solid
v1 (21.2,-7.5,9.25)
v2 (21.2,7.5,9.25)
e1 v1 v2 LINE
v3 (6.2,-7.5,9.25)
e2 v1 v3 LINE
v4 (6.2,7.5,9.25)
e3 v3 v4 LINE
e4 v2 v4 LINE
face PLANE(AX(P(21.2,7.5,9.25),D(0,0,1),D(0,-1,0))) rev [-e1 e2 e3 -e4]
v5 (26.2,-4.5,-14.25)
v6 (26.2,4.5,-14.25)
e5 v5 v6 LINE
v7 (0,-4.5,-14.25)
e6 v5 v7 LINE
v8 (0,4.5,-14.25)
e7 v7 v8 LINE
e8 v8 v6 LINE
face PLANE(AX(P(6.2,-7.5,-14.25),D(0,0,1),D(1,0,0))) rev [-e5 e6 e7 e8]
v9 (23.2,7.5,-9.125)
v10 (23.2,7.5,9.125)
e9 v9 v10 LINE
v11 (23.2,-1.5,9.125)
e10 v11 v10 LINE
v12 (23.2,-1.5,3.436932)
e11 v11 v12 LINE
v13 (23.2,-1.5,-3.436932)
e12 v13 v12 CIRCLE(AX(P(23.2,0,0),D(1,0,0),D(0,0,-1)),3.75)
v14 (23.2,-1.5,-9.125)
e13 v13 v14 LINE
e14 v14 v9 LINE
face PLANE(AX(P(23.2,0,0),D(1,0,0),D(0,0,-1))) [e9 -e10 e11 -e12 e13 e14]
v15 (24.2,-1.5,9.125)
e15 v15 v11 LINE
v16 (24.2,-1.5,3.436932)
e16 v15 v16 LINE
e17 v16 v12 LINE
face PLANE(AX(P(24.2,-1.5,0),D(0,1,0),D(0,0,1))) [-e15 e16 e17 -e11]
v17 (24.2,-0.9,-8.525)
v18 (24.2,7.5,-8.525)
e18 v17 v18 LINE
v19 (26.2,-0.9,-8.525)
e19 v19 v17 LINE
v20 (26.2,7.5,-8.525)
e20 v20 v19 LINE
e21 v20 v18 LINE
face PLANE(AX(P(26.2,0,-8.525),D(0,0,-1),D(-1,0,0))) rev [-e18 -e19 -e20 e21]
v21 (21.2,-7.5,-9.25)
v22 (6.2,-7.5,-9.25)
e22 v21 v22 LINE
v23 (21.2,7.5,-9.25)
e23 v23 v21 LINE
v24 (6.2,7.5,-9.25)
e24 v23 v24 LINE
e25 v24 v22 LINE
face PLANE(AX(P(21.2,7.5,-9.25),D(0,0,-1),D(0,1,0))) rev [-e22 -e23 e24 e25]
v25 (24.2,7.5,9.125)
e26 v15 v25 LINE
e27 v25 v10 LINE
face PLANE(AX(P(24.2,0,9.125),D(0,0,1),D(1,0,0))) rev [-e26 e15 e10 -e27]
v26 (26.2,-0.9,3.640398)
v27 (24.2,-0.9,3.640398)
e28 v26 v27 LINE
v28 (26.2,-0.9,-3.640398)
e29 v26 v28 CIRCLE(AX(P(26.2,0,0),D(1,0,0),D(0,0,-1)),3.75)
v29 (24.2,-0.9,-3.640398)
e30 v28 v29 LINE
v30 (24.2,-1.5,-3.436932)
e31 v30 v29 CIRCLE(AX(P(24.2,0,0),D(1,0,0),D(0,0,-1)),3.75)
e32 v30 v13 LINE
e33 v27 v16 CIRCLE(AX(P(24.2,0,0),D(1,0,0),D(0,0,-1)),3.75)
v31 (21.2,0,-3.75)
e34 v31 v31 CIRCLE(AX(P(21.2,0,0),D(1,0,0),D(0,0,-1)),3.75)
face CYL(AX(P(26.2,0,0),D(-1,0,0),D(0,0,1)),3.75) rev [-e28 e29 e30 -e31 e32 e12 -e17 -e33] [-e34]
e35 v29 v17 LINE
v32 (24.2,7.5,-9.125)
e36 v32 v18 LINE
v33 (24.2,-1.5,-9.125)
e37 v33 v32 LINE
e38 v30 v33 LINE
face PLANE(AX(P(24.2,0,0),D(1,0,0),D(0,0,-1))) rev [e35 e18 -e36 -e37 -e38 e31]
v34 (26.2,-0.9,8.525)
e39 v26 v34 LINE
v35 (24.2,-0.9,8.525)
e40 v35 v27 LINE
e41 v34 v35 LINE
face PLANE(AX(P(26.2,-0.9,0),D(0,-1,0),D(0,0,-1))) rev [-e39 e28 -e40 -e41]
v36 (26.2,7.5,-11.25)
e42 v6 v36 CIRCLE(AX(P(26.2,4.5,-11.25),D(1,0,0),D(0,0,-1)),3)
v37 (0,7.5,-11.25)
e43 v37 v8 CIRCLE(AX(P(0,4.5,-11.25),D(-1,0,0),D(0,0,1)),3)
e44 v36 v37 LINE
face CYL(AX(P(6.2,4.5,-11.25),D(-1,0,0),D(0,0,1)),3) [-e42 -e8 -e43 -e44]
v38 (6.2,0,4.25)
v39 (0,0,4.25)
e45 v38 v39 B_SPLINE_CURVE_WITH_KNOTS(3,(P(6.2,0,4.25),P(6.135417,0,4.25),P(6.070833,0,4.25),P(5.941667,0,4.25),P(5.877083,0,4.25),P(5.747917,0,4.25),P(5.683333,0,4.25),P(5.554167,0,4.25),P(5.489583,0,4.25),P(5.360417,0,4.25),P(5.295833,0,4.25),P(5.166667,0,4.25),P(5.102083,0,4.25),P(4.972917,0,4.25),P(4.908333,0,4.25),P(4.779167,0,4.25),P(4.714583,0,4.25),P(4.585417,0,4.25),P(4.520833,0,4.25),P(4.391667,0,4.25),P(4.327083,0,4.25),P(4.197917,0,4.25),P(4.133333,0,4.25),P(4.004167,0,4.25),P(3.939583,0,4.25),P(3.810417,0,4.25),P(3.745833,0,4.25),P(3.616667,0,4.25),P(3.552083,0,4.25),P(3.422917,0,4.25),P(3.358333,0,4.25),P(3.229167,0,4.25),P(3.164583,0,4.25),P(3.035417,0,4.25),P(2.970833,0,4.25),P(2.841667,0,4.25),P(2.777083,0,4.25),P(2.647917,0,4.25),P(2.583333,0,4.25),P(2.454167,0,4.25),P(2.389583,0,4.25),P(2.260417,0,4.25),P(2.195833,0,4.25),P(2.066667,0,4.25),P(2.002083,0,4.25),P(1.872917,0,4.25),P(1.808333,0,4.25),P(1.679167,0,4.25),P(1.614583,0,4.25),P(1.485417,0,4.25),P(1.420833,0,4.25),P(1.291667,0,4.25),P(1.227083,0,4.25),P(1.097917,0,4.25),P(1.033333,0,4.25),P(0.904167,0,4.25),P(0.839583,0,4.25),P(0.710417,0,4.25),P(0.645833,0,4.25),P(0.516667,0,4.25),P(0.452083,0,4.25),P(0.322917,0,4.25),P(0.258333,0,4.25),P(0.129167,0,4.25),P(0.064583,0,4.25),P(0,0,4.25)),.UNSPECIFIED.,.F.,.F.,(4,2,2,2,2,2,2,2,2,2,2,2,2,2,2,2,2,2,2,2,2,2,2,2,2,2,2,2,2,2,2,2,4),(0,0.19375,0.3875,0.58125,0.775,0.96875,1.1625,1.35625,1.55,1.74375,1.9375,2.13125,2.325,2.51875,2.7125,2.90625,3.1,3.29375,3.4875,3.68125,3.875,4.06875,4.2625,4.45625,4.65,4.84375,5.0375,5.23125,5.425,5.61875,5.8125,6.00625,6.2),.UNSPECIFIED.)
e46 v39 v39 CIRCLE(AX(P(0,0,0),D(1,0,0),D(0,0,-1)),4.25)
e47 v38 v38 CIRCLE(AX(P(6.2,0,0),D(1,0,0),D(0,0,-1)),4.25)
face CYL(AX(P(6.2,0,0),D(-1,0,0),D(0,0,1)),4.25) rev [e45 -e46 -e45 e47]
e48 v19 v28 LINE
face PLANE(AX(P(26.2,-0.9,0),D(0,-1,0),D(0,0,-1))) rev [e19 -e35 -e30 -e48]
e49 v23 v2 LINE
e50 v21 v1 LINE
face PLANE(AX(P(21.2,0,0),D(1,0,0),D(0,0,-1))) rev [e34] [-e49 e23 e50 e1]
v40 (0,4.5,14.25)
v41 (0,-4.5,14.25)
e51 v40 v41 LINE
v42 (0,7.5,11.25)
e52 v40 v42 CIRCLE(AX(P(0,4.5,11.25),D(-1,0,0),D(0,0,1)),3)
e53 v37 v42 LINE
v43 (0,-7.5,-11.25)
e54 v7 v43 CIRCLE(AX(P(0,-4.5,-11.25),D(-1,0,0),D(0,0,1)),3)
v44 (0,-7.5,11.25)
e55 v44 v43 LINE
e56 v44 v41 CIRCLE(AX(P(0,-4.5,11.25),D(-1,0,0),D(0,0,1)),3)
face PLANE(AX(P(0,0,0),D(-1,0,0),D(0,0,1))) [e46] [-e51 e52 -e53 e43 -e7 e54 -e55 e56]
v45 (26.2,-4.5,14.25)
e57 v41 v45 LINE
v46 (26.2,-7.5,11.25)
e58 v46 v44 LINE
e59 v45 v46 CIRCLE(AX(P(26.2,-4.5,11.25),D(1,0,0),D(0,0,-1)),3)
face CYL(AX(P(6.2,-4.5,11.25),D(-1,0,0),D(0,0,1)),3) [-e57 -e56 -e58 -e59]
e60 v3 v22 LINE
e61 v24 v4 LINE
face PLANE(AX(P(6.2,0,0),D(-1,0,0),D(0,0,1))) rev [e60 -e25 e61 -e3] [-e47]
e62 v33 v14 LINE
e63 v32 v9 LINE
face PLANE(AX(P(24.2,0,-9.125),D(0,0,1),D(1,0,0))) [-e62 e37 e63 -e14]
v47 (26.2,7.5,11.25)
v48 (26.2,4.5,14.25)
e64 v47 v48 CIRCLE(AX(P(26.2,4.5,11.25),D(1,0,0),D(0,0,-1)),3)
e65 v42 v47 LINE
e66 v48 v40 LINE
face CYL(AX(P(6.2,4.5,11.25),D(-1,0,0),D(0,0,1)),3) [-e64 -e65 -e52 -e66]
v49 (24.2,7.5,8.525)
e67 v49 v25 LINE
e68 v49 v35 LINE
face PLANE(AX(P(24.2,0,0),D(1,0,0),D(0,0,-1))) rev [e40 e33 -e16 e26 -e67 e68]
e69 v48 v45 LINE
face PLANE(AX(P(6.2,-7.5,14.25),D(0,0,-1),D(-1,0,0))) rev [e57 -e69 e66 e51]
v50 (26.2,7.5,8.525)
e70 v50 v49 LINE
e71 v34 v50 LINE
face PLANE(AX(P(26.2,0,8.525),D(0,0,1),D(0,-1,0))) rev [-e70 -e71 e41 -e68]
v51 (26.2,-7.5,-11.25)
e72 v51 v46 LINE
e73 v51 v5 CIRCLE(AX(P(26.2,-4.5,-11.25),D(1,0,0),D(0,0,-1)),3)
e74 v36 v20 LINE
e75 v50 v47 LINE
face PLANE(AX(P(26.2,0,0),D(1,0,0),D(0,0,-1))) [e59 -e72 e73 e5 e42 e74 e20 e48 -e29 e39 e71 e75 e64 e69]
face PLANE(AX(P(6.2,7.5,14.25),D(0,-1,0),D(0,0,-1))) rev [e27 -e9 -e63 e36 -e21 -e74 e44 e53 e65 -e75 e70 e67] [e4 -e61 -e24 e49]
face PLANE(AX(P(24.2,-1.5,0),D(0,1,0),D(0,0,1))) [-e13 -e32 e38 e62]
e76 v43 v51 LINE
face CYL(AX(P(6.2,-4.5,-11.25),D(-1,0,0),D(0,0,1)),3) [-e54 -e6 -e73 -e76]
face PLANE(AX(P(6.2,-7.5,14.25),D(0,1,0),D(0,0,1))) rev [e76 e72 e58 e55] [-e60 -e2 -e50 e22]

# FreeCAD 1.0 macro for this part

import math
import FreeCAD as App
import Part
import Sketcher

V = App.Vector
Q = App.Units.Quantity


def edges_at(feature, points):
    """Names of the edges that pass closest to the given points."""
    edges = feature.Shape.Edges
    near = lambda p: min(range(len(edges)), key=lambda i: edges[i].distToShape(Part.Vertex(*p))[0])
    return sorted({f"Edge{near(p) + 1}" for p in points})

doc = App.newDocument("Part")
body = doc.addObject("PartDesign::Body", "Body")

sketch1 = body.newObject("Sketcher::SketchObject", "Sketch")
sketch1.AttachmentSupport = (doc.getObject("YZ_Plane"), [""])
sketch1.MapMode = "FlatFace"
sketch1.addGeometry([
    Part.LineSegment(V(7.5, 14.2, 0), V(-7.5, 14.2, 0)),
    Part.LineSegment(V(-7.5, 14.2, 0), V(-7.5, -14.2, 0)),
    Part.LineSegment(V(-7.5, -14.2, 0), V(7.5, -14.2, 0)),
    Part.LineSegment(V(7.5, -14.2, 0), V(7.5, 14.2, 0)),
    Part.Circle(V(0, 0, 0), V(0, 0, 1), 4.2),
], False)
sketch1.addConstraint([
    Sketcher.Constraint("Coincident", 0, 2, 1, 1),
    Sketcher.Constraint("Coincident", 1, 2, 2, 1),
    Sketcher.Constraint("Coincident", 2, 2, 3, 1),
    Sketcher.Constraint("Coincident", 3, 2, 0, 1),
    Sketcher.Constraint("Horizontal", 0),
    Sketcher.Constraint("Vertical", 1),
    Sketcher.Constraint("Horizontal", 2),
    Sketcher.Constraint("Vertical", 3),
    Sketcher.Constraint("Coincident", 4, 3, -1, 1),
    Sketcher.Constraint("Symmetric", 0, 2, 2, 2, -1, 1),
    Sketcher.Constraint("Diameter", 4, Q("8.5 mm")),
    Sketcher.Constraint("DistanceX", 0, 2, 0, 1, Q("15 mm")),
    Sketcher.Constraint("DistanceY", 1, 2, 1, 1, Q("28.5 mm")),
])
pad1 = body.newObject("PartDesign::Pad", "Pad")
pad1.Profile = sketch1
pad1.Length = 6.2

sketch2 = body.newObject("Sketcher::SketchObject", "Sketch001")
sketch2.AttachmentSupport = (doc.getObject("YZ_Plane"), [""])
sketch2.MapMode = "FlatFace"
sketch2.AttachmentOffset = App.Placement(V(0, 0, 6.2), App.Rotation())
sketch2.addGeometry([
    Part.LineSegment(V(8, 14, 0), V(-8, 14, 0)),
    Part.LineSegment(V(-8, 14, 0), V(-8, 9, 0)),
    Part.LineSegment(V(-8, 9, 0), V(8, 9, 0)),
    Part.LineSegment(V(8, 9, 0), V(8, 14, 0)),
    Part.LineSegment(V(8, -9, 0), V(-8, -9, 0)),
    Part.LineSegment(V(-8, -9, 0), V(-8, -14, 0)),
    Part.LineSegment(V(-8, -14, 0), V(8, -14, 0)),
    Part.LineSegment(V(8, -14, 0), V(8, -9, 0)),
], False)
sketch2.addConstraint([
    Sketcher.Constraint("Coincident", 0, 2, 1, 1),
    Sketcher.Constraint("Coincident", 1, 2, 2, 1),
    Sketcher.Constraint("Coincident", 2, 2, 3, 1),
    Sketcher.Constraint("Coincident", 3, 2, 0, 1),
    Sketcher.Constraint("Coincident", 4, 2, 5, 1),
    Sketcher.Constraint("Coincident", 5, 2, 6, 1),
    Sketcher.Constraint("Coincident", 6, 2, 7, 1),
    Sketcher.Constraint("Coincident", 7, 2, 4, 1),
    Sketcher.Constraint("Horizontal", 0),
    Sketcher.Constraint("Vertical", 1),
    Sketcher.Constraint("Horizontal", 2),
    Sketcher.Constraint("Vertical", 3),
    Sketcher.Constraint("Horizontal", 4),
    Sketcher.Constraint("Vertical", 5),
    Sketcher.Constraint("Horizontal", 6),
    Sketcher.Constraint("Vertical", 7),
    Sketcher.Constraint("Symmetric", 2, 2, 4, 2, -1, 1),
    Sketcher.Constraint("Symmetric", 0, 2, 6, 2, -1, 1),
    Sketcher.Constraint("Vertical", 1, 2, 4, 2),
    Sketcher.Constraint("DistanceX", 0, 2, 0, 1, Q("15 mm")),
    Sketcher.Constraint("DistanceY", 1, 2, 1, 1, Q("5 mm")),
    Sketcher.Constraint("DistanceY", 4, 2, 1, 2, Q("18.5 mm")),
])
pad2 = body.newObject("PartDesign::Pad", "Pad001")
pad2.Profile = sketch2
pad2.Length = 15

sketch3 = body.newObject("Sketcher::SketchObject", "Sketch002")
sketch3.AttachmentSupport = (doc.getObject("YZ_Plane"), [""])
sketch3.MapMode = "FlatFace"
sketch3.AttachmentOffset = App.Placement(V(0, 0, 21.2), App.Rotation())
sketch3.addGeometry([
    Part.LineSegment(V(7.5, 14.2, 0), V(-7.5, 14.2, 0)),
    Part.LineSegment(V(-7.5, 14.2, 0), V(-7.5, -14.2, 0)),
    Part.LineSegment(V(-7.5, -14.2, 0), V(7.5, -14.2, 0)),
    Part.LineSegment(V(7.5, -14.2, 0), V(7.5, 14.2, 0)),
    Part.ArcOfCircle(Part.Circle(V(0, 0, 0), V(0, 0, 1), 3.8), math.radians(114), math.radians(246)),
    Part.ArcOfCircle(Part.Circle(V(0, 0, 0), V(0, 0, 1), 3.7), math.radians(103.89), math.radians(113.58)),
    Part.ArcOfCircle(Part.Circle(V(0, 0, 0), V(0, 0, 1), 3.8), math.radians(-90), math.radians(104)),
    Part.ArcOfCircle(Part.Circle(V(0, 0, 0), V(0, 0, 1), 3.7), math.radians(-103.89), math.radians(-90)),
    Part.ArcOfCircle(Part.Circle(V(0, 0, 0), V(0, 0, 1), 3.7), math.radians(-113.58), math.radians(-103.89)),
], False)
sketch3.addConstraint([
    Sketcher.Constraint("Coincident", 0, 2, 1, 1),
    Sketcher.Constraint("Coincident", 1, 2, 2, 1),
    Sketcher.Constraint("Coincident", 2, 2, 3, 1),
    Sketcher.Constraint("Coincident", 3, 2, 0, 1),
    Sketcher.Constraint("Tangent", 4, 1, 5, 2),
    Sketcher.Constraint("Tangent", 5, 1, 6, 2),
    Sketcher.Constraint("Tangent", 6, 1, 7, 2),
    Sketcher.Constraint("Tangent", 7, 1, 8, 2),
    Sketcher.Constraint("Tangent", 8, 1, 4, 2),
    Sketcher.Constraint("Horizontal", 0),
    Sketcher.Constraint("Vertical", 1),
    Sketcher.Constraint("Horizontal", 2),
    Sketcher.Constraint("Vertical", 3),
    Sketcher.Constraint("Coincident", 4, 3, -1, 1),
    Sketcher.Constraint("Coincident", 6, 3, -1, 1),
    Sketcher.Constraint("Symmetric", 0, 2, 2, 2, -1, 1),
    Sketcher.Constraint("PointOnObject", 6, 1, -2),
    Sketcher.Constraint("Vertical", 5, 1, 7, 1),
    Sketcher.Constraint("Vertical", 4, 1, 8, 1),
    Sketcher.Constraint("DistanceX", 0, 2, 0, 1, Q("15 mm")),
    Sketcher.Constraint("Radius", 4, Q("3.75 mm")),
    Sketcher.Constraint("DistanceY", 1, 2, 1, 1, Q("28.5 mm")),
    Sketcher.Constraint("DistanceX", 4, 1, -1, 1, Q("1.5 mm")),
    Sketcher.Constraint("DistanceX", 5, 1, -1, 1, Q("0.9 mm")),
])
pad3 = body.newObject("PartDesign::Pad", "Pad002")
pad3.Profile = sketch3
pad3.Length = 5

sketch4 = body.newObject("Sketcher::SketchObject", "Sketch003")
sketch4.AttachmentSupport = (doc.getObject("YZ_Plane"), [""])
sketch4.MapMode = "FlatFace"
sketch4.AttachmentOffset = App.Placement(V(0, 0, 23.2), App.Rotation())
sketch4.addGeometry([
    Part.LineSegment(V(7.5, 9.1, 0), V(-1.5, 9.1, 0)),
    Part.LineSegment(V(-1.5, 9.1, 0), V(-1.5, 3.4, 0)),
    Part.ArcOfCircle(Part.Circle(V(0, 0, 0), V(0, 0, 1), 3.7), math.radians(103.89), math.radians(113.58)),
    Part.ArcOfCircle(Part.Circle(V(0, 0, 0), V(0, 0, 1), 3.8), math.radians(-90), math.radians(104)),
    Part.ArcOfCircle(Part.Circle(V(0, 0, 0), V(0, 0, 1), 3.7), math.radians(-103.89), math.radians(-90)),
    Part.ArcOfCircle(Part.Circle(V(0, 0, 0), V(0, 0, 1), 3.7), math.radians(-113.58), math.radians(-103.89)),
    Part.LineSegment(V(-1.5, -3.4, 0), V(-1.5, -9.1, 0)),
    Part.LineSegment(V(-1.5, -9.1, 0), V(7.5, -9.1, 0)),
    Part.LineSegment(V(7.5, -9.1, 0), V(7.5, 9.1, 0)),
], False)
sketch4.addConstraint([
    Sketcher.Constraint("Coincident", 0, 2, 1, 1),
    Sketcher.Constraint("Coincident", 1, 2, 2, 2),
    Sketcher.Constraint("Tangent", 2, 1, 3, 2),
    Sketcher.Constraint("Tangent", 3, 1, 4, 2),
    Sketcher.Constraint("Tangent", 4, 1, 5, 2),
    Sketcher.Constraint("Coincident", 5, 1, 6, 1),
    Sketcher.Constraint("Coincident", 6, 2, 7, 1),
    Sketcher.Constraint("Coincident", 7, 2, 8, 1),
    Sketcher.Constraint("Coincident", 8, 2, 0, 1),
    Sketcher.Constraint("Horizontal", 0),
    Sketcher.Constraint("Vertical", 1),
    Sketcher.Constraint("Vertical", 6),
    Sketcher.Constraint("Horizontal", 7),
    Sketcher.Constraint("Vertical", 8),
    Sketcher.Constraint("Coincident", 2, 3, -1, 1),
    Sketcher.Constraint("Coincident", 4, 3, -1, 1),
    Sketcher.Constraint("Equal", 4, 5),
    Sketcher.Constraint("Symmetric", 0, 2, 6, 2, -1),
    Sketcher.Constraint("PointOnObject", 3, 1, -2),
    Sketcher.Constraint("Vertical", 2, 1, 4, 1),
    Sketcher.Constraint("DistanceX", 0, 2, 0, 1, Q("9 mm")),
    Sketcher.Constraint("Radius", 2, Q("3.75 mm")),
    Sketcher.Constraint("DistanceY", 8, 1, 8, 2, Q("18.25 mm")),
    Sketcher.Constraint("DistanceX", 0, 2, -1, 1, Q("1.5 mm")),
    Sketcher.Constraint("DistanceX", 2, 1, -1, 1, Q("0.9 mm")),
])
pocket1 = body.newObject("PartDesign::Pocket", "Pocket")
pocket1.Profile = sketch4
pocket1.Length = 1
pocket1.Reversed = True

sketch5 = body.newObject("Sketcher::SketchObject", "Sketch004")
sketch5.AttachmentSupport = (doc.getObject("YZ_Plane"), [""])
sketch5.MapMode = "FlatFace"
sketch5.AttachmentOffset = App.Placement(V(0, 0, 24.2), App.Rotation())
sketch5.addGeometry([
    Part.LineSegment(V(-0.9, -8.5, 0), V(7.5, -8.5, 0)),
    Part.LineSegment(V(7.5, -8.5, 0), V(7.5, 8.5, 0)),
    Part.LineSegment(V(7.5, 8.5, 0), V(-0.9, 8.5, 0)),
    Part.LineSegment(V(-0.9, 8.5, 0), V(-0.9, 3.6, 0)),
    Part.ArcOfCircle(Part.Circle(V(0, 0, 0), V(0, 0, 1), 3.8), math.radians(-90), math.radians(104)),
    Part.ArcOfCircle(Part.Circle(V(0, 0, 0), V(0, 0, 1), 3.7), math.radians(-103.89), math.radians(-90)),
    Part.LineSegment(V(-0.9, -3.6, 0), V(-0.9, -8.5, 0)),
], False)
sketch5.addConstraint([
    Sketcher.Constraint("Coincident", 0, 2, 1, 1),
    Sketcher.Constraint("Coincident", 1, 2, 2, 1),
    Sketcher.Constraint("Coincident", 2, 2, 3, 1),
    Sketcher.Constraint("Coincident", 3, 2, 4, 2),
    Sketcher.Constraint("Tangent", 4, 1, 5, 2),
    Sketcher.Constraint("Coincident", 5, 1, 6, 1),
    Sketcher.Constraint("Coincident", 6, 2, 0, 1),
    Sketcher.Constraint("Horizontal", 0),
    Sketcher.Constraint("Vertical", 1),
    Sketcher.Constraint("Horizontal", 2),
    Sketcher.Constraint("Vertical", 3),
    Sketcher.Constraint("Vertical", 6),
    Sketcher.Constraint("Coincident", 4, 3, -1, 1),
    Sketcher.Constraint("Equal", 4, 5),
    Sketcher.Constraint("Symmetric", 2, 2, 6, 2, -1),
    Sketcher.Constraint("PointOnObject", 4, 1, -2),
    Sketcher.Constraint("Radius", 4, Q("3.75 mm")),
    Sketcher.Constraint("DistanceX", 0, 1, 0, 2, Q("8.4 mm")),
    Sketcher.Constraint("DistanceY", 1, 1, 1, 2, Q("17.05 mm")),
    Sketcher.Constraint("DistanceX", -1, 1, 0, 2, Q("7.5 mm")),
])
pocket2 = body.newObject("PartDesign::Pocket", "Pocket001")
pocket2.Profile = sketch5
pocket2.Length = 2
pocket2.Reversed = True
doc.recompute()

fillet = body.newObject("PartDesign::Fillet", "Fillet")
fillet.Base = (pocket2, edges_at(pocket2, [
    (13.1, -7.5, -14.25),
    (13.1, -7.5, 14.25),
    (13.1, 7.5, 14.25),
    (13.1, 7.5, -14.25),
]))
fillet.Radius = 3

doc.recompute()
